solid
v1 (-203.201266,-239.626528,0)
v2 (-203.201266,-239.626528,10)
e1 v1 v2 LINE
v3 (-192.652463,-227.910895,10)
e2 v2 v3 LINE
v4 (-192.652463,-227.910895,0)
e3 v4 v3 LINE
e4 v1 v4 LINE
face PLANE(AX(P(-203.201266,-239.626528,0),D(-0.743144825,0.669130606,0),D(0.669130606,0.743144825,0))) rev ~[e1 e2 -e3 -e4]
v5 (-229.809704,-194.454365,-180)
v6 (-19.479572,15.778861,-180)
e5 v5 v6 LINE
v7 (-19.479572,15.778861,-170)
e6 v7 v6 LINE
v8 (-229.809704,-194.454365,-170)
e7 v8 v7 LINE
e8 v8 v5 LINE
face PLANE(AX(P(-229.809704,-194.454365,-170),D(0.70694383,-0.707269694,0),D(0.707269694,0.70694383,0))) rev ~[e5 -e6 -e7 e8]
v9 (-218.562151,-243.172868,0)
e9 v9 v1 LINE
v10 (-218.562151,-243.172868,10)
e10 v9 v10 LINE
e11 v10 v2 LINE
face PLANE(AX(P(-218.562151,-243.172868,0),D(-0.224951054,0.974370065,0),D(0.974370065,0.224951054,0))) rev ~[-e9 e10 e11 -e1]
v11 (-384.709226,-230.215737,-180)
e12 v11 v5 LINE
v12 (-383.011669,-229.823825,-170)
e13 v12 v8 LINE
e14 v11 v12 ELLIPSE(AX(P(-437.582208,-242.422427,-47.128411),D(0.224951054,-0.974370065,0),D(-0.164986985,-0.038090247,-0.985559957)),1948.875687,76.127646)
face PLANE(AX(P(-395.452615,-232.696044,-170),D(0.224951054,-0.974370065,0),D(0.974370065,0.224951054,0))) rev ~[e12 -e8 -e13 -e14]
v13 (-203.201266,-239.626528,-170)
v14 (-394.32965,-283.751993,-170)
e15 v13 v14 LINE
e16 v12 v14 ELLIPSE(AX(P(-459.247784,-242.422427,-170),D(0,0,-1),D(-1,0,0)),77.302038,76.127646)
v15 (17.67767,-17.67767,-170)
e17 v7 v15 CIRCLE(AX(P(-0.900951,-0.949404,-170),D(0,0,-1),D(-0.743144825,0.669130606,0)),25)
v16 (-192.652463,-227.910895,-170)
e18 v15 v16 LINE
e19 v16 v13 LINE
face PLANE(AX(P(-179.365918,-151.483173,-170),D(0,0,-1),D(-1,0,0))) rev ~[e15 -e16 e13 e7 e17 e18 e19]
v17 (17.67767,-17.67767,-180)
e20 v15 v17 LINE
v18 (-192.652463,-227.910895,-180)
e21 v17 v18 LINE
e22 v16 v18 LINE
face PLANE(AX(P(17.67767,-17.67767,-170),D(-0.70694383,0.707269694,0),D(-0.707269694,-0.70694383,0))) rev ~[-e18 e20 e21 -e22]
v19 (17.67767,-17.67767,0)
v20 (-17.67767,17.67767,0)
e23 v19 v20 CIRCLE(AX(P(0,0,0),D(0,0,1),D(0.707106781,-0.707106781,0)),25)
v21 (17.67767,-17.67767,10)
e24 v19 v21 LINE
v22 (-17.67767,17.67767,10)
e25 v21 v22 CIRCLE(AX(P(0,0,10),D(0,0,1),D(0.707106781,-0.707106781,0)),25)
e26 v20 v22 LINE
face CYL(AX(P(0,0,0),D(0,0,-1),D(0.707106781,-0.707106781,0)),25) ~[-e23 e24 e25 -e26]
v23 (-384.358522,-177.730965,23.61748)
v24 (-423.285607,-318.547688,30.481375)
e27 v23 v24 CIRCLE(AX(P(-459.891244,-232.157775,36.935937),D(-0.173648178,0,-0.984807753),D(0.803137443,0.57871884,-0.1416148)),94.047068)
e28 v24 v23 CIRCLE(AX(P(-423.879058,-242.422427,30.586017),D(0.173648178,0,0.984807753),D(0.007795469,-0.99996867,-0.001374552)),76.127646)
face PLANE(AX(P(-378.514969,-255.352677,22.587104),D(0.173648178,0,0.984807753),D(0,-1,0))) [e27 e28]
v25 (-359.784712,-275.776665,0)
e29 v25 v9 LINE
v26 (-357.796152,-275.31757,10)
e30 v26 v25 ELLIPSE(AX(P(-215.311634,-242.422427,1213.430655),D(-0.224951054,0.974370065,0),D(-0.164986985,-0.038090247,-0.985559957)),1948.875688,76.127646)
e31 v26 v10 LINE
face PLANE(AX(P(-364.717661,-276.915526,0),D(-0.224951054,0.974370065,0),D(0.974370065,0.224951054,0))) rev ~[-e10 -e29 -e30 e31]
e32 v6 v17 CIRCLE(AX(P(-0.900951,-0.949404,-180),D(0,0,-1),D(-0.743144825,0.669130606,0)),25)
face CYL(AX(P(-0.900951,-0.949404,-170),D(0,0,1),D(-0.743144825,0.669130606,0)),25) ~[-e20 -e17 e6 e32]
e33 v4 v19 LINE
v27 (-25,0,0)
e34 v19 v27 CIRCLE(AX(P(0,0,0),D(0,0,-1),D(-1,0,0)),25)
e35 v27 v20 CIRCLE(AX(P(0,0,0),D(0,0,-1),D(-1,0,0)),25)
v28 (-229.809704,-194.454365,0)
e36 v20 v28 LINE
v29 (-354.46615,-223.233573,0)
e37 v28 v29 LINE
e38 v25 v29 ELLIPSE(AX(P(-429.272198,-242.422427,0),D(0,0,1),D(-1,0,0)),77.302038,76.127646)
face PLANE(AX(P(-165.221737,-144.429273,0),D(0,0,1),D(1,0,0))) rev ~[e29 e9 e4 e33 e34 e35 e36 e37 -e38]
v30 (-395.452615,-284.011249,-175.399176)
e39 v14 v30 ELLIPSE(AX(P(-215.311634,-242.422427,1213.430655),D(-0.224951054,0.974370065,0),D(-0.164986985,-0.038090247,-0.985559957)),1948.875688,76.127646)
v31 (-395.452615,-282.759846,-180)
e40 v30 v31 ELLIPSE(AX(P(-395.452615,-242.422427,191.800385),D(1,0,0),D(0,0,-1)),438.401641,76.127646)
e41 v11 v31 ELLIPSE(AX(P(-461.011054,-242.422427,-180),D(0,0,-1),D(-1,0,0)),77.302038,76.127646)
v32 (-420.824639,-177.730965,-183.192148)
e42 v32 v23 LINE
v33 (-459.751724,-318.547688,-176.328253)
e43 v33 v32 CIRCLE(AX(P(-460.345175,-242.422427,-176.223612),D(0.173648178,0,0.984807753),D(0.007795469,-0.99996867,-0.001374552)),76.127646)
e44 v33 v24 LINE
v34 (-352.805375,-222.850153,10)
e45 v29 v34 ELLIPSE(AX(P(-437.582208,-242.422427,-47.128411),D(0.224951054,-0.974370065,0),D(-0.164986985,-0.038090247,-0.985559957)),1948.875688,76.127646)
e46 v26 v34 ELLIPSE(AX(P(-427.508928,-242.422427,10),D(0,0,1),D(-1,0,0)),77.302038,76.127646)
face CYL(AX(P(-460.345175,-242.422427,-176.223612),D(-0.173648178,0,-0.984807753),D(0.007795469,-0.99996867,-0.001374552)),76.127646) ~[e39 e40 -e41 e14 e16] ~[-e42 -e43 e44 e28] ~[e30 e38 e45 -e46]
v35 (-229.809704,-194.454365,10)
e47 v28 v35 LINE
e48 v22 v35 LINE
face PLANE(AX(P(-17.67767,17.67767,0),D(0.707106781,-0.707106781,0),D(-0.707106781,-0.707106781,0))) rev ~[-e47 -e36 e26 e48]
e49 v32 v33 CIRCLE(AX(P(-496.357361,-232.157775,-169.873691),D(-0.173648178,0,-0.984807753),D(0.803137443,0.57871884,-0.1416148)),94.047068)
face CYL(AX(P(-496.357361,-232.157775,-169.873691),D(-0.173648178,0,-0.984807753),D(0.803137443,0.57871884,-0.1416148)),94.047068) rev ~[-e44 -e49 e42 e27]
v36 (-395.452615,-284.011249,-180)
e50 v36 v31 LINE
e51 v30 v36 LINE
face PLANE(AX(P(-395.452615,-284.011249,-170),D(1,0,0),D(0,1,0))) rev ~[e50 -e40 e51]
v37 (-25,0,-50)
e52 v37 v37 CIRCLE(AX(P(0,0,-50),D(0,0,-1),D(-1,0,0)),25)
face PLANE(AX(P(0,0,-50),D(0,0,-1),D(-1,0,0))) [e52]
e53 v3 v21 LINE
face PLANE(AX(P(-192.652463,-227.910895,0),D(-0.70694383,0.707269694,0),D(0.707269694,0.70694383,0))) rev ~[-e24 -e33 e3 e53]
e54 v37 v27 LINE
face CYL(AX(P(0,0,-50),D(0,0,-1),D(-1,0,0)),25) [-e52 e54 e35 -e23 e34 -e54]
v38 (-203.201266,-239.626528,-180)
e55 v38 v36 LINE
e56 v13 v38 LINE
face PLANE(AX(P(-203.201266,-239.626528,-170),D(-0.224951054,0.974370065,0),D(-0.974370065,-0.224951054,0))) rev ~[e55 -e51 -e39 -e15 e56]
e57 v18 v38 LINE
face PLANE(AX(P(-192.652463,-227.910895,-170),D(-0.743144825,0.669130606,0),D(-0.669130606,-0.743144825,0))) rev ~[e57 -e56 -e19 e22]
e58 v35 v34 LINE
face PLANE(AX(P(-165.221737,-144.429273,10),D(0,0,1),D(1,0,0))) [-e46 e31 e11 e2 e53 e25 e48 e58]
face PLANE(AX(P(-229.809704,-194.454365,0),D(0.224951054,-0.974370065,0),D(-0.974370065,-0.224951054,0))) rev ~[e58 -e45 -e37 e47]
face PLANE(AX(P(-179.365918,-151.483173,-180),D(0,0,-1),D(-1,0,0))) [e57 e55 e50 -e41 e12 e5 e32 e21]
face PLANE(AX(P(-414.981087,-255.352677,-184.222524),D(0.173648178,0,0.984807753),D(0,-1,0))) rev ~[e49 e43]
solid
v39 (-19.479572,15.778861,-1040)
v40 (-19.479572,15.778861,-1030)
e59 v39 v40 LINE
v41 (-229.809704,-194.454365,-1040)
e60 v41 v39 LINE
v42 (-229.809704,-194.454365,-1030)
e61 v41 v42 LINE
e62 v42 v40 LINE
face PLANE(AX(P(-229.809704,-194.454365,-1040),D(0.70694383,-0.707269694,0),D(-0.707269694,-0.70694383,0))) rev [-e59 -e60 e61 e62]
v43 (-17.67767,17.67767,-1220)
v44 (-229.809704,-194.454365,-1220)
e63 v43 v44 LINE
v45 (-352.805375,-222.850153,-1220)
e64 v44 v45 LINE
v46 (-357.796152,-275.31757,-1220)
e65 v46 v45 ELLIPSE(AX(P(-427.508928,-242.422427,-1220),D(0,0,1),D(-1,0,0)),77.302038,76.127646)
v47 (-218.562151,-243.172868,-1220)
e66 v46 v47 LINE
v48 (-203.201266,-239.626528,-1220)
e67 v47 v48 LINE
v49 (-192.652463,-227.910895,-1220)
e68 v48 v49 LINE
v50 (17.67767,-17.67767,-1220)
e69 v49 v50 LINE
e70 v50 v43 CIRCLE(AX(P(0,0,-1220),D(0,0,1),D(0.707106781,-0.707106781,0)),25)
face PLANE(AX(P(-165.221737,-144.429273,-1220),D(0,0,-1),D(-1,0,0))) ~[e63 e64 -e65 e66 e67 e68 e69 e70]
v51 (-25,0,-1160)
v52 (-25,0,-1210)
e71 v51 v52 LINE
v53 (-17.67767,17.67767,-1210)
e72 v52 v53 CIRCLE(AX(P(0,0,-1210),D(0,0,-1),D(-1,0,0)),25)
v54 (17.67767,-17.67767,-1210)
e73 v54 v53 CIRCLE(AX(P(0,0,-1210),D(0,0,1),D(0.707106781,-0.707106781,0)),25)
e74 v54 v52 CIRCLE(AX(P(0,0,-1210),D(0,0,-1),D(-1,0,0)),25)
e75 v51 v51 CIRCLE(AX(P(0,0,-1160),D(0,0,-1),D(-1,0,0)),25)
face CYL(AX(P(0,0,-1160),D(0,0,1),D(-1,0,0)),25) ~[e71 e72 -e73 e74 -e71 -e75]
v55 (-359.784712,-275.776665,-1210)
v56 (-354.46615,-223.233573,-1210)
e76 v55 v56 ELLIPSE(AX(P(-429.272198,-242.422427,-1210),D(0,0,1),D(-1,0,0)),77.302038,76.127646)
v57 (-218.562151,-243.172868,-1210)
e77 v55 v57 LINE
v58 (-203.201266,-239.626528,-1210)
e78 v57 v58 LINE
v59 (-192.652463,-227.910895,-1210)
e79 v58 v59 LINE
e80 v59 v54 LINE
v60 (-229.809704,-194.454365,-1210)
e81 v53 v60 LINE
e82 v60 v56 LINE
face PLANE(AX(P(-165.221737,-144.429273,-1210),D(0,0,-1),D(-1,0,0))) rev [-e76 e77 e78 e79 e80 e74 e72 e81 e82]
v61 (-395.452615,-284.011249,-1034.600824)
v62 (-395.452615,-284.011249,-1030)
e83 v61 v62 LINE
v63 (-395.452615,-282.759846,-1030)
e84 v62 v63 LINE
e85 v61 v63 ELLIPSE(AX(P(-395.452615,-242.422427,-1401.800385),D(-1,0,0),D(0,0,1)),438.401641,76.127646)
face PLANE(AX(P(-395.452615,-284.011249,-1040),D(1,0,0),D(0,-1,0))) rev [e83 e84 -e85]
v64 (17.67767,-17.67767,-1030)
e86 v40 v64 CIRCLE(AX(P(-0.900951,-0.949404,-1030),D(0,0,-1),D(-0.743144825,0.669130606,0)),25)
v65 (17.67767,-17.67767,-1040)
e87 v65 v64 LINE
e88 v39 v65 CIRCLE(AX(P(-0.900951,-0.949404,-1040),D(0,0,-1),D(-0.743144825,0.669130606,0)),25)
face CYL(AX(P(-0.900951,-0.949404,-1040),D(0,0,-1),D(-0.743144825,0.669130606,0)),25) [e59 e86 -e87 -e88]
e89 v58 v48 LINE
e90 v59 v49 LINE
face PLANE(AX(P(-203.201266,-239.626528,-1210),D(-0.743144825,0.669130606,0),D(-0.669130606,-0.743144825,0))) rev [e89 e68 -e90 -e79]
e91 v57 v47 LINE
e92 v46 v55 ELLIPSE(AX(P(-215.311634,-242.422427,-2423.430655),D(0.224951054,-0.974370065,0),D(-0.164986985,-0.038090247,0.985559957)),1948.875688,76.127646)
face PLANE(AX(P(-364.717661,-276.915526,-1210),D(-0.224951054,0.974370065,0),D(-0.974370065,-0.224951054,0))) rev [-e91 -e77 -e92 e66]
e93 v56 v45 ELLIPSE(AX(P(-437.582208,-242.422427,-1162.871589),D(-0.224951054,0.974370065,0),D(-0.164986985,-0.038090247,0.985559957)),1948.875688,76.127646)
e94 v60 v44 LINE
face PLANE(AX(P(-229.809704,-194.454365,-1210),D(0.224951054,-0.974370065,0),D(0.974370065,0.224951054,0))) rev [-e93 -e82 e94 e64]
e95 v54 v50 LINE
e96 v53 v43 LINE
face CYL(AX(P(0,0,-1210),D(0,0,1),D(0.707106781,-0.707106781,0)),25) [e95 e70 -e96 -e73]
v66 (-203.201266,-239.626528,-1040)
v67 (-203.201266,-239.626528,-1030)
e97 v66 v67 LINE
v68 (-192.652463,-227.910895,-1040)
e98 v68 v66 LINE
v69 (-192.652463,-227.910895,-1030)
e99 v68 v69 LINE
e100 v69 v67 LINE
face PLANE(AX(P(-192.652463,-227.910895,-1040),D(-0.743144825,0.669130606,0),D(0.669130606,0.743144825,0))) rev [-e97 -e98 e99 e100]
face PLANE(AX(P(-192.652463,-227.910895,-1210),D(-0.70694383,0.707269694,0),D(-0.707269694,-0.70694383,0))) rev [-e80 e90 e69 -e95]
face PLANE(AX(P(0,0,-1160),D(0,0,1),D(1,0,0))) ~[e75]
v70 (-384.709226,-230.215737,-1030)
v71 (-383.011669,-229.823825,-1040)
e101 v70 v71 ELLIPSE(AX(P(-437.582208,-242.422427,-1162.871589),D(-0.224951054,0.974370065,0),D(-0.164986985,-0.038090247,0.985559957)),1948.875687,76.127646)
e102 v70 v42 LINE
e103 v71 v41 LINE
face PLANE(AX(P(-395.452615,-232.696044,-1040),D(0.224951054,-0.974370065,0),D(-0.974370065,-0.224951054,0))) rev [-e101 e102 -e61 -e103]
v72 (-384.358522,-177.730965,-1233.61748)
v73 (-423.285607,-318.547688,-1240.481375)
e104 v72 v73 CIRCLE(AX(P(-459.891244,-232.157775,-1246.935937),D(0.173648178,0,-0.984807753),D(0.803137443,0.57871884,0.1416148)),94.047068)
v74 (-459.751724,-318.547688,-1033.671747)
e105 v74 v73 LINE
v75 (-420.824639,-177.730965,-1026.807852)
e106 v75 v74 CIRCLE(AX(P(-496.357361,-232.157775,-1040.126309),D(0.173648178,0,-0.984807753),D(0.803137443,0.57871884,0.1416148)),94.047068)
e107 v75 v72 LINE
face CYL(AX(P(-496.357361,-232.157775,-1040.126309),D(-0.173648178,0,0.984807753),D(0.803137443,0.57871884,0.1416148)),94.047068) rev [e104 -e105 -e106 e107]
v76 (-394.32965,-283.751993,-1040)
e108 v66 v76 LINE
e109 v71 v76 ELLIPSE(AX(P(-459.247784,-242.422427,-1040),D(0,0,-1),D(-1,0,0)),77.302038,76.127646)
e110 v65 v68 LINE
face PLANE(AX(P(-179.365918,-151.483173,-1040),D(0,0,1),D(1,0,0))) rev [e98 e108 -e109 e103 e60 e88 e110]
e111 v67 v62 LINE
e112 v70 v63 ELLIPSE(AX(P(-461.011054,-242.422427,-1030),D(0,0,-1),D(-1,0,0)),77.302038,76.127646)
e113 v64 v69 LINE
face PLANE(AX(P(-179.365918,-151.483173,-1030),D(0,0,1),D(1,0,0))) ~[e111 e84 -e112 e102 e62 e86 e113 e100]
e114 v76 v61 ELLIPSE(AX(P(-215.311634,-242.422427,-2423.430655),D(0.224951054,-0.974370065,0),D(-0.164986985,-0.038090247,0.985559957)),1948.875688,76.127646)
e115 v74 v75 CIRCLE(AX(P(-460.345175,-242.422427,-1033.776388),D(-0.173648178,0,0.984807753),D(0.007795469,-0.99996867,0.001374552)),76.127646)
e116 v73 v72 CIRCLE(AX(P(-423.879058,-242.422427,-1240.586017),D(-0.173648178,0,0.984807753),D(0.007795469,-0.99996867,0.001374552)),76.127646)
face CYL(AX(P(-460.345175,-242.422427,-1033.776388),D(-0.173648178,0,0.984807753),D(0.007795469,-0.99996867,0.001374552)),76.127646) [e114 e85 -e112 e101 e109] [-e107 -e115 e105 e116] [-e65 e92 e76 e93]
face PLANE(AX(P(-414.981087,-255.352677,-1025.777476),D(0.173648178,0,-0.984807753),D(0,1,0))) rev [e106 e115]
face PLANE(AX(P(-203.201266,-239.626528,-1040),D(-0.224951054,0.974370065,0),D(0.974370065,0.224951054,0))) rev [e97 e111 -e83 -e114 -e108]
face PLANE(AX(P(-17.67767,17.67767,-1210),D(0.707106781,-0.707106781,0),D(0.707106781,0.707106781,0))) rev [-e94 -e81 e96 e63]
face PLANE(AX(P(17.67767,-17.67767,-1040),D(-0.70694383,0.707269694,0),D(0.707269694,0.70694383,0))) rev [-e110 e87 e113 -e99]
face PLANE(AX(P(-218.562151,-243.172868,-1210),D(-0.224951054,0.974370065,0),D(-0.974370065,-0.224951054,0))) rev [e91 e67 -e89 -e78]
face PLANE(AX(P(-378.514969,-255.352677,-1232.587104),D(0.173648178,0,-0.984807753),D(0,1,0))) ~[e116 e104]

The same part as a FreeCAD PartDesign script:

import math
import FreeCAD as App
import Part
import Sketcher
Q = App.Units.Quantity

doc = App.newDocument("Part")
params = doc.addObject("Spreadsheet::Sheet", "Params")
for row, (alias, value) in enumerate([
    ("sketch1_radius", "25 mm"),
    ("sketch1_length", "300 mm"),
    ("sketch1_length2", "150 mm"),
    ("pad1_length", "10 mm"),
    ("sketch2_diameter", "50 mm"),
    ("pad2_length", "50 mm"),
    ("pad3_length", "10 mm"),
    ("pad3_length2", "200 mm"),
    ("sketch4_radius", "25 mm"),
    ("sketch4_length", "170 mm"),
    ("pad4_length", "10 mm"),
], start=1):
    params.set(f"A{row}", alias)
    params.set(f"B{row}", "=" + value)
    params.setAlias(f"B{row}", alias)

body = doc.addObject("PartDesign::Body", "Body")

# Sketch on XY plane
sketch1 = doc.addObject("Sketcher::SketchObject", "Sketch")
body.addObject(sketch1)
sketch1.AttachmentSupport = (doc.XY_Plane, [""])
sketch1.MapMode = "FlatFace"
sketch1.addGeometry([
    Part.LineSegment(App.Vector(-18, 18, 0), App.Vector(-230, -194, 0)),  # 0
    Part.LineSegment(App.Vector(-230, -194, 0), App.Vector(-365, -226, 0)),  # 1
    Part.LineSegment(App.Vector(-365, -226, 0), App.Vector(-365, -277, 0)),  # 2
    Part.LineSegment(App.Vector(-365, -277, 0), App.Vector(-219, -243, 0)),  # 3
    Part.LineSegment(App.Vector(-219, -243, 0), App.Vector(-203, -240, 0)),  # 4
    Part.LineSegment(App.Vector(-203, -240, 0), App.Vector(-193, -228, 0)),  # 5
    Part.LineSegment(App.Vector(-193, -228, 0), App.Vector(18, -18, 0)),  # 6
    Part.ArcOfCircle(Part.Circle(App.Vector(0, 0, 0), App.Vector(0, 0, 1), 25), math.radians(-45), math.radians(135)),  # 7
], False)
sketch1.addConstraint([
    Sketcher.Constraint("Coincident", 0, 2, 1, 1),
    Sketcher.Constraint("Coincident", 1, 2, 2, 1),
    Sketcher.Constraint("Coincident", 2, 2, 3, 1),
    Sketcher.Constraint("Coincident", 3, 2, 4, 1),
    Sketcher.Constraint("Coincident", 4, 2, 5, 1),
    Sketcher.Constraint("Coincident", 5, 2, 6, 1),
    Sketcher.Constraint("Coincident", 6, 2, 7, 1),
    Sketcher.Constraint("Tangent", 7, 2, 0, 1),
    Sketcher.Constraint("Vertical", 2),
    Sketcher.Constraint("Coincident", 7, 3, -1, 1),
    Sketcher.Constraint("Parallel", 1, 3),
    Sketcher.Constraint("Parallel", 3, 4),
    Sketcher.Constraint("Equal", 4, 5),
    Sketcher.Constraint("Radius", 7, 25.0),
    Sketcher.Constraint("Angle", 0, Q("-135 deg")),
    Sketcher.Constraint("Angle", 1, Q("-167 deg")),
    Sketcher.Constraint("Angle", 5, Q("48 deg")),
    Sketcher.Constraint("Distance", 0, 300.0),
    Sketcher.Constraint("Distance", 3, 150.0),
    Sketcher.Constraint("DistanceX", 1, 2, 5, 2, 172.065198),
    Sketcher.Constraint("DistanceY", 3, 2, 6, 2, 225.495199),
    Sketcher.Constraint("Distance", 1, 138.45659),
    Sketcher.Constraint("Distance", 6, 297.38321),
])
sketch1.setExpression("Constraints[13]", "Params.sketch1_radius")
sketch1.setExpression("Constraints[17]", "Params.sketch1_length")
sketch1.setExpression("Constraints[18]", "Params.sketch1_length2")
pad1 = doc.addObject("PartDesign::Pad", "Pad")
body.addObject(pad1)
pad1.Profile = sketch1
pad1.setExpression("Length", "Params.pad1_length")

# Sketch on XY plane
sketch2 = doc.addObject("Sketcher::SketchObject", "Sketch001")
body.addObject(sketch2)
sketch2.AttachmentSupport = (doc.XY_Plane, [""])
sketch2.MapMode = "FlatFace"
sketch2.AttachmentOffset = App.Placement(App.Vector(0, 0, -50), App.Rotation())
sketch2.addGeometry(Part.Circle(App.Vector(0, 0, 0), App.Vector(0, 0, 1), 25), False)
sketch2.addConstraint([
    Sketcher.Constraint("Coincident", 0, 3, -1, 1),
    Sketcher.Constraint("Diameter", 0, 50.0),
])
sketch2.setExpression("Constraints[1]", "Params.sketch2_diameter")
pad2 = doc.addObject("PartDesign::Pad", "Pad001")
body.addObject(pad2)
pad2.Profile = sketch2
pad2.setExpression("Length", "Params.pad2_length")

# Sketch on an angled plane
sketch3 = doc.addObject("Sketcher::SketchObject", "Sketch002")
body.addObject(sketch3)
sketch3.Placement = App.Placement(App.Vector(-9.287482, 0, -52.67193), App.Rotation(App.Vector(0, -1, 0), App.Vector(0.984807753, 0, -0.173648178), App.Vector(0.173648178, 0, 0.984807753), "ZXY"))
sketch3.addGeometry([
    Part.ArcOfCircle(Part.Circle(App.Vector(232, -459, 0), App.Vector(0, 0, 1), 94), math.radians(23), math.radians(125)),
    Part.ArcOfCircle(Part.Circle(App.Vector(242, -423, 0), App.Vector(0, 0, 1), 76), math.radians(0), math.radians(148)),
], False)
sketch3.addConstraint([
    Sketcher.Constraint("Coincident", 0, 1, 1, 1),
    Sketcher.Constraint("Coincident", 1, 2, 0, 2),
    Sketcher.Constraint("Radius", 0, 94.047068),
    Sketcher.Constraint("Radius", 1, 76.127646),
    Sketcher.Constraint("DistanceY", 0, 3, -1, 1, 459.318321),
    Sketcher.Constraint("DistanceY", 1, 3, -1, 1, 422.750588),
    Sketcher.Constraint("DistanceX", 0, 3, 1, 3, 10.264652),
    Sketcher.Constraint("DistanceX", -1, 1, 0, 3, 232.157775),
])
pad3 = doc.addObject("PartDesign::Pad", "Pad002")
body.addObject(pad3)
pad3.Profile = sketch3
pad3.Type = "TwoLengths"
pad3.setExpression("Length", "Params.pad3_length")
pad3.setExpression("Length2", "Params.pad3_length2")

# Sketch on XY plane
sketch4 = doc.addObject("Sketcher::SketchObject", "Sketch003")
body.addObject(sketch4)
sketch4.AttachmentSupport = (doc.XY_Plane, [""])
sketch4.MapMode = "FlatFace"
sketch4.AttachmentOffset = App.Placement(App.Vector(0, 0, -170), App.Rotation())
sketch4.addGeometry([
    Part.LineSegment(App.Vector(-395, -284, 0), App.Vector(-395, -233, 0)),  # 0
    Part.LineSegment(App.Vector(-395, -233, 0), App.Vector(-230, -194, 0)),  # 1
    Part.LineSegment(App.Vector(-230, -194, 0), App.Vector(-19, 16, 0)),  # 2
    Part.ArcOfCircle(Part.Circle(App.Vector(-1, -1, 0), App.Vector(0, 0, 1), 25), math.radians(-42), math.radians(138)),  # 3
    Part.LineSegment(App.Vector(18, -18, 0), App.Vector(-193, -228, 0)),  # 4
    Part.LineSegment(App.Vector(-193, -228, 0), App.Vector(-203, -240, 0)),  # 5
    Part.LineSegment(App.Vector(-203, -240, 0), App.Vector(-395, -284, 0)),  # 6
], False)
sketch4.addConstraint([
    Sketcher.Constraint("Coincident", 0, 2, 1, 1),
    Sketcher.Constraint("Coincident", 1, 2, 2, 1),
    Sketcher.Constraint("Coincident", 2, 2, 3, 2),
    Sketcher.Constraint("Coincident", 3, 1, 4, 1),
    Sketcher.Constraint("Coincident", 4, 2, 5, 1),
    Sketcher.Constraint("Coincident", 5, 2, 6, 1),
    Sketcher.Constraint("Coincident", 6, 2, 0, 1),
    Sketcher.Constraint("Vertical", 0),
    Sketcher.Constraint("Parallel", 2, 4),
    Sketcher.Constraint("Parallel", 1, 6),
    Sketcher.Constraint("Equal", 2, 4),
    Sketcher.Constraint("Radius", 3, 25.0),
    Sketcher.Constraint("Angle", 1, Q("13 deg")),
    Sketcher.Constraint("Angle", 5, Q("-132 deg")),
    Sketcher.Constraint("Distance", 1, 170.0),
    Sketcher.Constraint("Distance", 2, 297.38321),
    Sketcher.Constraint("Distance", 5, 15.764939),
    Sketcher.Constraint("Distance", 6, 197.308349),
    Sketcher.Constraint("DistanceX", 3, 3, -1, 1, 0.900951),
    Sketcher.Constraint("DistanceX", 2, 2, -1, 1, 19.479572),
    Sketcher.Constraint("DistanceY", -1, 1, 2, 2, 15.778861),
    Sketcher.Constraint("DistanceY", 5, 2, -1, 1, 239.626528),
])
sketch4.setExpression("Constraints[11]", "Params.sketch4_radius")
sketch4.setExpression("Constraints[14]", "Params.sketch4_length")
pad4 = doc.addObject("PartDesign::Pad", "Pad003")
body.addObject(pad4)
pad4.Profile = sketch4
pad4.setExpression("Length", "Params.pad4_length")
pad4.Reversed = True
body2 = doc.addObject("PartDesign::Body", "Body001")
doc.recompute()

mirroring = doc.addObject("Part::Mirroring", "Mirroring")
mirroring.Source = body
mirroring.Base = App.Vector(0, 0, -605)
mirroring.Normal = App.Vector(0, 0, -1)
body2.BaseFeature = mirroring
doc.recompute()
mirroring.Visibility = False

doc.recompute()
